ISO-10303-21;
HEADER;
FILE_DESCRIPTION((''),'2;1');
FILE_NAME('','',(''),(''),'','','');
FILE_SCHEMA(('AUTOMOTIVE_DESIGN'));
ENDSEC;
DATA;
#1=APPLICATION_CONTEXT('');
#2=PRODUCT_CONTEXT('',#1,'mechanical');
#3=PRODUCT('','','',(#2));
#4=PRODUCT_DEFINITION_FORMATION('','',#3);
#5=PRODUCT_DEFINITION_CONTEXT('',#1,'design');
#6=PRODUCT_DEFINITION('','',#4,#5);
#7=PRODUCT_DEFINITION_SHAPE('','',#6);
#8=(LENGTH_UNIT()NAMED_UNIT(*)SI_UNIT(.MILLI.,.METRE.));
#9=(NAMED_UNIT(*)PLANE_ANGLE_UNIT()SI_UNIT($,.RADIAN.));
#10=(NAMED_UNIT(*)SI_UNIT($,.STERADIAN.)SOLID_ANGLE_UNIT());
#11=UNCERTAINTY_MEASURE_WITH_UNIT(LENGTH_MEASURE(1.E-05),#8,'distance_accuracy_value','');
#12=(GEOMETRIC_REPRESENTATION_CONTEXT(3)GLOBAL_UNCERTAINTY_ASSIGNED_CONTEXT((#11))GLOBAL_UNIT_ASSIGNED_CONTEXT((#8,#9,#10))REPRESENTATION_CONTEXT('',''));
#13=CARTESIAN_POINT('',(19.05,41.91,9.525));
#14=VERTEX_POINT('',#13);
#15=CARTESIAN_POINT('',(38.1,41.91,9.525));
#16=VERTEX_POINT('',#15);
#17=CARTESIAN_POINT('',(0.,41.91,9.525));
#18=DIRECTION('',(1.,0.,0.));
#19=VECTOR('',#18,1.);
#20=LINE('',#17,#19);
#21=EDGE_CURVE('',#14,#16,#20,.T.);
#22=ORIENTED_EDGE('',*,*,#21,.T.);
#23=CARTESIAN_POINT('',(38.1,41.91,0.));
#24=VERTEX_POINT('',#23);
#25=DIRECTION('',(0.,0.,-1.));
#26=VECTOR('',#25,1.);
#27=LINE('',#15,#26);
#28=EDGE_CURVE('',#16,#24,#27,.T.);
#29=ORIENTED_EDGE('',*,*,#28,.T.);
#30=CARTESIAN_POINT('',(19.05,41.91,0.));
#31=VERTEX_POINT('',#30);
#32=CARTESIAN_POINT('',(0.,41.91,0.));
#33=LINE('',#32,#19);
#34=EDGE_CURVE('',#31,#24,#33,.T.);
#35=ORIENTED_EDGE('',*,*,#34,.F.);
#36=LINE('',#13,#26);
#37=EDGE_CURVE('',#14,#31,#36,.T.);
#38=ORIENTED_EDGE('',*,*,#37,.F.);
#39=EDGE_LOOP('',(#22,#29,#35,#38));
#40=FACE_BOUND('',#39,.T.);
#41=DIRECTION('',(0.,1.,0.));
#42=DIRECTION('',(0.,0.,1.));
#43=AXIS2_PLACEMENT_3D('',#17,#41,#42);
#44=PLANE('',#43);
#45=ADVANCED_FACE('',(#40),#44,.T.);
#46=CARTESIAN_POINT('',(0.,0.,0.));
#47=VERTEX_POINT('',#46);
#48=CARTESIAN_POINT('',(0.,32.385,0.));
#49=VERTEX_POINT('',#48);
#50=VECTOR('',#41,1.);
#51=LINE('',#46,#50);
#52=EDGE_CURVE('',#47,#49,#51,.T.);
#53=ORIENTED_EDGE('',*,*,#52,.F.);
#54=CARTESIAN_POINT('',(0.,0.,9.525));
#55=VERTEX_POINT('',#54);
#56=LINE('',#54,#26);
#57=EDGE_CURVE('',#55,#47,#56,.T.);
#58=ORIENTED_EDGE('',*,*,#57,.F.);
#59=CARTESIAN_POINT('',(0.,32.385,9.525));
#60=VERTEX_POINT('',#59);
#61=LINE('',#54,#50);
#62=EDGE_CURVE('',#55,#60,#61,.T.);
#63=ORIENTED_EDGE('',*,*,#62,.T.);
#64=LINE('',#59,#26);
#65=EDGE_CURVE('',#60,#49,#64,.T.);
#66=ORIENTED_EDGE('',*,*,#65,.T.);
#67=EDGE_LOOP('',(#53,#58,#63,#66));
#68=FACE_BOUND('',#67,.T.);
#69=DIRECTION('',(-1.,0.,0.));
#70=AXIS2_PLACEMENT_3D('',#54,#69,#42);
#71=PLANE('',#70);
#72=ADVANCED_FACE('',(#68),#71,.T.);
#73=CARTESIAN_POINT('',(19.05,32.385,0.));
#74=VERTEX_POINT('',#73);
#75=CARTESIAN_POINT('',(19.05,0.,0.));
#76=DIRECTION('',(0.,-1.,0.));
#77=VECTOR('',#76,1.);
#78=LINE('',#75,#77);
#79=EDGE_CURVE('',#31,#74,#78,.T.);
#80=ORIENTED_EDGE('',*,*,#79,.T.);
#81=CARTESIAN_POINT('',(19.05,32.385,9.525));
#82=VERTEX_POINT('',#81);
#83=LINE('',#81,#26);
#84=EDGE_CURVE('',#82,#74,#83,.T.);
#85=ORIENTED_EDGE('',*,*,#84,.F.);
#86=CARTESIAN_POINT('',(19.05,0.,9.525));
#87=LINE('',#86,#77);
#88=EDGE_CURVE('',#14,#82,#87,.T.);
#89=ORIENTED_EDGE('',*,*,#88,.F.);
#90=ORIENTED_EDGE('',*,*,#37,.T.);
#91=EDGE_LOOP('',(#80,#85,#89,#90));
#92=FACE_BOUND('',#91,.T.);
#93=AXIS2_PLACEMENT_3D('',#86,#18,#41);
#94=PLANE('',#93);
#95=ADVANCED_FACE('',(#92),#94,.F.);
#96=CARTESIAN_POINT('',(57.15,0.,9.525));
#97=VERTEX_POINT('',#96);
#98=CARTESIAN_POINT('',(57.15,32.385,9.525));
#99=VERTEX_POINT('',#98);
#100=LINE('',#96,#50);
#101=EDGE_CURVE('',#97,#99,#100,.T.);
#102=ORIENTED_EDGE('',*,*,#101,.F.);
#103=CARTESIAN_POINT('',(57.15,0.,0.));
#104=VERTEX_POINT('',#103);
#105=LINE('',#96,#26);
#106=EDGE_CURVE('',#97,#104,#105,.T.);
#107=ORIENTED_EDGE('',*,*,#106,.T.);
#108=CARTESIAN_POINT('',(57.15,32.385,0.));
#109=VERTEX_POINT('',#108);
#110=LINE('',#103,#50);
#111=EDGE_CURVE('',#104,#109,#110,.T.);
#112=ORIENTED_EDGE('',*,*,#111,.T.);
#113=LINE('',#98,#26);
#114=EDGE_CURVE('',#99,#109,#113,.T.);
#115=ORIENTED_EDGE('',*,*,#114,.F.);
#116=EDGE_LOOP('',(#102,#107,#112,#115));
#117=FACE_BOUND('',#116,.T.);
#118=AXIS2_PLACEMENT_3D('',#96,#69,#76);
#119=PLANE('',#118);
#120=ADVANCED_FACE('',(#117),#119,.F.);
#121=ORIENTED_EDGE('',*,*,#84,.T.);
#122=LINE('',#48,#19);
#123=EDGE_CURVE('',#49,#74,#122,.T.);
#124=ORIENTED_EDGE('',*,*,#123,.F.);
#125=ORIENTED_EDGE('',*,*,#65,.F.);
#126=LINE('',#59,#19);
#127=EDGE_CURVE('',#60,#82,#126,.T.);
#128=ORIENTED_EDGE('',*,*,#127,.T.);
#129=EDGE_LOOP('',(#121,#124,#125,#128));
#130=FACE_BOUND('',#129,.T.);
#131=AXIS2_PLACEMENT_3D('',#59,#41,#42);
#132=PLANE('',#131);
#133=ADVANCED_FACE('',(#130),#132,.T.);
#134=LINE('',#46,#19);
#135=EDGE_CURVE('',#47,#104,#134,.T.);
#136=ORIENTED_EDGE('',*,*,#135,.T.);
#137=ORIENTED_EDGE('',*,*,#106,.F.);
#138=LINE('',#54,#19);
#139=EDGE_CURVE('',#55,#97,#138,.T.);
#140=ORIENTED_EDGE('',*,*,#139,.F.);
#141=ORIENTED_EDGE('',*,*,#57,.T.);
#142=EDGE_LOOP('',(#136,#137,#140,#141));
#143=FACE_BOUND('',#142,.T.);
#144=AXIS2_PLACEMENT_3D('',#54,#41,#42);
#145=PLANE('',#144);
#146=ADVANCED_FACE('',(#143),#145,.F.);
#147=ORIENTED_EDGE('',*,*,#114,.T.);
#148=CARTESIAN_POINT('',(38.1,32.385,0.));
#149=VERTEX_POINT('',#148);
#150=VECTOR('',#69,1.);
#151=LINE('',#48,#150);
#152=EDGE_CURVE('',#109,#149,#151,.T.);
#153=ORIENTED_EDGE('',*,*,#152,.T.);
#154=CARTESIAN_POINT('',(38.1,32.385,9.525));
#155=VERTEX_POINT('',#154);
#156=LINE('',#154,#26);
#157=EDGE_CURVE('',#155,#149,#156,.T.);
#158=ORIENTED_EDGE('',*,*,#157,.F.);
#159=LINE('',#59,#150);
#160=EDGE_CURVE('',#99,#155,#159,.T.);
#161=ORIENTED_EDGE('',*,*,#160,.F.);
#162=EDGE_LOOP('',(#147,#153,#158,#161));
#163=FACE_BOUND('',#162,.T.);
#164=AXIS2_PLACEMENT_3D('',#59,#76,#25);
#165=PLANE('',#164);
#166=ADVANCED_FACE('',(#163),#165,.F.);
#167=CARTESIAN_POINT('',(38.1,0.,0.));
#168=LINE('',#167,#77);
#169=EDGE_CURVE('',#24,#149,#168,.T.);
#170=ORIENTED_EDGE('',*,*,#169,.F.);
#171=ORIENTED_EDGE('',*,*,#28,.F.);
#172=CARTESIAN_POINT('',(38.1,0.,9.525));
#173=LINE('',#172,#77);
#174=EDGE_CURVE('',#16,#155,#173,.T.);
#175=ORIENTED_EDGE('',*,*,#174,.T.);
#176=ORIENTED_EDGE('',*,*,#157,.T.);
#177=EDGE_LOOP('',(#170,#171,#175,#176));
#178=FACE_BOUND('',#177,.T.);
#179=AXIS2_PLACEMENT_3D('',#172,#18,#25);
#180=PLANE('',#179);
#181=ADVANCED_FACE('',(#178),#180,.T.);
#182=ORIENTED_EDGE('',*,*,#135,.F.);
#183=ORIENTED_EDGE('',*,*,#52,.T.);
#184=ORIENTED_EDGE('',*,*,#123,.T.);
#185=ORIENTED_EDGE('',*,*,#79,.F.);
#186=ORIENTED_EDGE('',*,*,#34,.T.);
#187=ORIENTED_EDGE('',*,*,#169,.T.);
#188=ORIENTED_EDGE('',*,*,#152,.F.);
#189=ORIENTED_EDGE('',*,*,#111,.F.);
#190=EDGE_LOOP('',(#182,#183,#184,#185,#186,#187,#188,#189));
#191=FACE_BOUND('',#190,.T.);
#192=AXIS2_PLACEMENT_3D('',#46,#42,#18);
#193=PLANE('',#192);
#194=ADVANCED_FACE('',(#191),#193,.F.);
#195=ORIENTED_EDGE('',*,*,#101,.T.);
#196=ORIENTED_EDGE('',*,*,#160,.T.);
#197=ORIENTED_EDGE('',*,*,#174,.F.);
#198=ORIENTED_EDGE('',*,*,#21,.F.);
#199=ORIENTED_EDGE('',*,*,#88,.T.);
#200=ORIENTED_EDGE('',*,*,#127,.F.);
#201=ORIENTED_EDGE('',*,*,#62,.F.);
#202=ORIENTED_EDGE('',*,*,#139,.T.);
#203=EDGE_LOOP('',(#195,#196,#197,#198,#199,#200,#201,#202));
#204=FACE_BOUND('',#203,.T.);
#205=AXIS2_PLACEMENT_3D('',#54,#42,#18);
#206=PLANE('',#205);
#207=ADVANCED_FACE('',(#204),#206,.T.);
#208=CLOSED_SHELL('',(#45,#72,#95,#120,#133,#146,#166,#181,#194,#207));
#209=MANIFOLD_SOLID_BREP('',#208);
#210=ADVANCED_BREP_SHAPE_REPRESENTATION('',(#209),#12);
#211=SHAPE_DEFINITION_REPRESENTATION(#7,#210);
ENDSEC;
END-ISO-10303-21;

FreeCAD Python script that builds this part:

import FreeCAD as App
import Part
import Sketcher
Q = App.Units.Quantity

doc = App.newDocument("Part")
params = doc.addObject("Spreadsheet::Sheet", "Params")
for row, (alias, value) in enumerate([
    ("sketch1_width", "2.25 in"),
    ("sketch1_height", "1.275 in"),
    ("sketch1_height2", "0.375 in"),
    ("pad1_length", "0.375 in"),
], start=1):
    params.set(f"A{row}", alias)
    params.set(f"B{row}", "=" + value)
    params.setAlias(f"B{row}", alias)

body = doc.addObject("PartDesign::Body", "Body")

# Sketch on XY plane
sketch1 = body.newObject("Sketcher::SketchObject", "Sketch")
sketch1.AttachmentSupport = (doc.getObject("XY_Plane"), [""])
sketch1.MapMode = "FlatFace"
sketch1.addGeometry(Part.LineSegment(App.Vector(0, 32, 0), App.Vector(0, 0, 0)), False)
sketch1.addGeometry(Part.LineSegment(App.Vector(0, 0, 0), App.Vector(57, 0, 0)), False)
sketch1.addGeometry(Part.LineSegment(App.Vector(57, 0, 0), App.Vector(57, 32, 0)), False)
sketch1.addGeometry(Part.LineSegment(App.Vector(57, 32, 0), App.Vector(38, 32, 0)), False)
sketch1.addGeometry(Part.LineSegment(App.Vector(38, 32, 0), App.Vector(38, 42, 0)), False)
sketch1.addGeometry(Part.LineSegment(App.Vector(38, 42, 0), App.Vector(19, 42, 0)), False)
sketch1.addGeometry(Part.LineSegment(App.Vector(19, 42, 0), App.Vector(19, 32, 0)), False)
sketch1.addGeometry(Part.LineSegment(App.Vector(19, 32, 0), App.Vector(0, 32, 0)), False)
sketch1.addConstraint(Sketcher.Constraint("Coincident", 0, 2, 1, 1))
sketch1.addConstraint(Sketcher.Constraint("Coincident", 1, 2, 2, 1))
sketch1.addConstraint(Sketcher.Constraint("Coincident", 2, 2, 3, 1))
sketch1.addConstraint(Sketcher.Constraint("Coincident", 3, 2, 4, 1))
sketch1.addConstraint(Sketcher.Constraint("Coincident", 4, 2, 5, 1))
sketch1.addConstraint(Sketcher.Constraint("Coincident", 5, 2, 6, 1))
sketch1.addConstraint(Sketcher.Constraint("Coincident", 6, 2, 7, 1))
sketch1.addConstraint(Sketcher.Constraint("Coincident", 7, 2, 0, 1))
sketch1.addConstraint(Sketcher.Constraint("Vertical", 0))
sketch1.addConstraint(Sketcher.Constraint("Horizontal", 1))
sketch1.addConstraint(Sketcher.Constraint("Vertical", 2))
sketch1.addConstraint(Sketcher.Constraint("Horizontal", 3))
sketch1.addConstraint(Sketcher.Constraint("Vertical", 4))
sketch1.addConstraint(Sketcher.Constraint("Horizontal", 5))
sketch1.addConstraint(Sketcher.Constraint("Vertical", 6))
sketch1.addConstraint(Sketcher.Constraint("Horizontal", 7))
sketch1.addConstraint(Sketcher.Constraint("Coincident", 0, 2, -1, 1))
sketch1.addConstraint(Sketcher.Constraint("Horizontal", 3, 2, 6, 2))
sketch1.addConstraint(Sketcher.Constraint("Equal", 3, 5))
sketch1.addConstraint(Sketcher.Constraint("Equal", 5, 7))
sketch1.addConstraint(Sketcher.Constraint("DistanceX", 1, 1, 1, 2, Q("2.25 in")))
sketch1.addConstraint(Sketcher.Constraint("DistanceY", 0, 2, 0, 1, Q("1.275 in")))
sketch1.addConstraint(Sketcher.Constraint("DistanceY", 4, 1, 4, 2, Q("0.375 in")))
sketch1.setExpression("Constraints[20]", "Params.sketch1_width")
sketch1.setExpression("Constraints[21]", "Params.sketch1_height")
sketch1.setExpression("Constraints[22]", "Params.sketch1_height2")
pad1 = body.newObject("PartDesign::Pad", "Pad")
pad1.Profile = sketch1
pad1.setExpression("Length", "Params.pad1_length")

doc.recompute()
